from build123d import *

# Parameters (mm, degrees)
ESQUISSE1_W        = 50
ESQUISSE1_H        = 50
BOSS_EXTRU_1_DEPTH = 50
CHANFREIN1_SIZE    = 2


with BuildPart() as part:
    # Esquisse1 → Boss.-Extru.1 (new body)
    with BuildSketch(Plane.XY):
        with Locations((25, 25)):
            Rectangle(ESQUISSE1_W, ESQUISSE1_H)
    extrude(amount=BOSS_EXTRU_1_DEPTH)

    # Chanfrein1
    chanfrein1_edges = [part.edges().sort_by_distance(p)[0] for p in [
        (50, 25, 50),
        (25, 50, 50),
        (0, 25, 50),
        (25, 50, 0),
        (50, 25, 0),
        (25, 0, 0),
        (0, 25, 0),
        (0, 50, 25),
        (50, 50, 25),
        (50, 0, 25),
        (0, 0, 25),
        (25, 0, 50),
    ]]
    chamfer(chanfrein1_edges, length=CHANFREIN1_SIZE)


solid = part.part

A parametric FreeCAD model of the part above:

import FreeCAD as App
import Part
import Sketcher

V = App.Vector
Q = App.Units.Quantity


def add_polygon(sketch, points):
    """Adds a closed chain of lines whose ends are joined by coincident constraints."""
    first, n = sketch.GeometryCount, len(points)
    for a, b in zip(points, points[1:] + points[:1]):
        sketch.addGeometry(Part.LineSegment(App.Vector(*a, 0), App.Vector(*b, 0)), False)
    for i in range(n):
        sketch.addConstraint(Sketcher.Constraint("Coincident", first + i, 2, first + (i + 1) % n, 1))

doc = App.newDocument("Part")
params = doc.addObject("Spreadsheet::Sheet", "Params")
for row, (alias, value) in enumerate([
    ("sketch1_width", "50 mm"),
    ("pad1_length", "50 mm"),
    ("chamfer_size", "2 mm"),
], start=1):
    params.set(f"A{row}", alias)
    params.set(f"B{row}", "=" + value)
    params.setAlias(f"B{row}", alias)

body = doc.addObject("PartDesign::Body", "Body")

sketch1 = body.newObject("Sketcher::SketchObject", "Sketch")
sketch1.AttachmentSupport = (doc.getObject("XY_Plane"), [""])
sketch1.MapMode = "FlatFace"
add_polygon(sketch1, [(0, 50), (0, 0), (50, 0), (50, 50)])
sketch1.addConstraint([
    Sketcher.Constraint("Vertical", 0),
    Sketcher.Constraint("Horizontal", 1),
    Sketcher.Constraint("Vertical", 2),
    Sketcher.Constraint("Horizontal", 3),
    Sketcher.Constraint("Coincident", 0, 2, -1, 1),
    Sketcher.Constraint("Equal", 3, 0),
    Sketcher.Constraint("DistanceX", 1, 1, 1, 2, Q("50 mm")),
])
sketch1.setExpression("Constraints[10]", "Params.sketch1_width")
pad1 = body.newObject("PartDesign::Pad", "Pad")
pad1.Profile = sketch1
pad1.setExpression("Length", "Params.pad1_length")
doc.recompute()

chamfer = body.newObject("PartDesign::Chamfer", "Chamfer")
chamfer.Base = (pad1, ["Edge1"])
chamfer.UseAllEdges = True
chamfer.setExpression("Size", "Params.chamfer_size")

doc.recompute()
